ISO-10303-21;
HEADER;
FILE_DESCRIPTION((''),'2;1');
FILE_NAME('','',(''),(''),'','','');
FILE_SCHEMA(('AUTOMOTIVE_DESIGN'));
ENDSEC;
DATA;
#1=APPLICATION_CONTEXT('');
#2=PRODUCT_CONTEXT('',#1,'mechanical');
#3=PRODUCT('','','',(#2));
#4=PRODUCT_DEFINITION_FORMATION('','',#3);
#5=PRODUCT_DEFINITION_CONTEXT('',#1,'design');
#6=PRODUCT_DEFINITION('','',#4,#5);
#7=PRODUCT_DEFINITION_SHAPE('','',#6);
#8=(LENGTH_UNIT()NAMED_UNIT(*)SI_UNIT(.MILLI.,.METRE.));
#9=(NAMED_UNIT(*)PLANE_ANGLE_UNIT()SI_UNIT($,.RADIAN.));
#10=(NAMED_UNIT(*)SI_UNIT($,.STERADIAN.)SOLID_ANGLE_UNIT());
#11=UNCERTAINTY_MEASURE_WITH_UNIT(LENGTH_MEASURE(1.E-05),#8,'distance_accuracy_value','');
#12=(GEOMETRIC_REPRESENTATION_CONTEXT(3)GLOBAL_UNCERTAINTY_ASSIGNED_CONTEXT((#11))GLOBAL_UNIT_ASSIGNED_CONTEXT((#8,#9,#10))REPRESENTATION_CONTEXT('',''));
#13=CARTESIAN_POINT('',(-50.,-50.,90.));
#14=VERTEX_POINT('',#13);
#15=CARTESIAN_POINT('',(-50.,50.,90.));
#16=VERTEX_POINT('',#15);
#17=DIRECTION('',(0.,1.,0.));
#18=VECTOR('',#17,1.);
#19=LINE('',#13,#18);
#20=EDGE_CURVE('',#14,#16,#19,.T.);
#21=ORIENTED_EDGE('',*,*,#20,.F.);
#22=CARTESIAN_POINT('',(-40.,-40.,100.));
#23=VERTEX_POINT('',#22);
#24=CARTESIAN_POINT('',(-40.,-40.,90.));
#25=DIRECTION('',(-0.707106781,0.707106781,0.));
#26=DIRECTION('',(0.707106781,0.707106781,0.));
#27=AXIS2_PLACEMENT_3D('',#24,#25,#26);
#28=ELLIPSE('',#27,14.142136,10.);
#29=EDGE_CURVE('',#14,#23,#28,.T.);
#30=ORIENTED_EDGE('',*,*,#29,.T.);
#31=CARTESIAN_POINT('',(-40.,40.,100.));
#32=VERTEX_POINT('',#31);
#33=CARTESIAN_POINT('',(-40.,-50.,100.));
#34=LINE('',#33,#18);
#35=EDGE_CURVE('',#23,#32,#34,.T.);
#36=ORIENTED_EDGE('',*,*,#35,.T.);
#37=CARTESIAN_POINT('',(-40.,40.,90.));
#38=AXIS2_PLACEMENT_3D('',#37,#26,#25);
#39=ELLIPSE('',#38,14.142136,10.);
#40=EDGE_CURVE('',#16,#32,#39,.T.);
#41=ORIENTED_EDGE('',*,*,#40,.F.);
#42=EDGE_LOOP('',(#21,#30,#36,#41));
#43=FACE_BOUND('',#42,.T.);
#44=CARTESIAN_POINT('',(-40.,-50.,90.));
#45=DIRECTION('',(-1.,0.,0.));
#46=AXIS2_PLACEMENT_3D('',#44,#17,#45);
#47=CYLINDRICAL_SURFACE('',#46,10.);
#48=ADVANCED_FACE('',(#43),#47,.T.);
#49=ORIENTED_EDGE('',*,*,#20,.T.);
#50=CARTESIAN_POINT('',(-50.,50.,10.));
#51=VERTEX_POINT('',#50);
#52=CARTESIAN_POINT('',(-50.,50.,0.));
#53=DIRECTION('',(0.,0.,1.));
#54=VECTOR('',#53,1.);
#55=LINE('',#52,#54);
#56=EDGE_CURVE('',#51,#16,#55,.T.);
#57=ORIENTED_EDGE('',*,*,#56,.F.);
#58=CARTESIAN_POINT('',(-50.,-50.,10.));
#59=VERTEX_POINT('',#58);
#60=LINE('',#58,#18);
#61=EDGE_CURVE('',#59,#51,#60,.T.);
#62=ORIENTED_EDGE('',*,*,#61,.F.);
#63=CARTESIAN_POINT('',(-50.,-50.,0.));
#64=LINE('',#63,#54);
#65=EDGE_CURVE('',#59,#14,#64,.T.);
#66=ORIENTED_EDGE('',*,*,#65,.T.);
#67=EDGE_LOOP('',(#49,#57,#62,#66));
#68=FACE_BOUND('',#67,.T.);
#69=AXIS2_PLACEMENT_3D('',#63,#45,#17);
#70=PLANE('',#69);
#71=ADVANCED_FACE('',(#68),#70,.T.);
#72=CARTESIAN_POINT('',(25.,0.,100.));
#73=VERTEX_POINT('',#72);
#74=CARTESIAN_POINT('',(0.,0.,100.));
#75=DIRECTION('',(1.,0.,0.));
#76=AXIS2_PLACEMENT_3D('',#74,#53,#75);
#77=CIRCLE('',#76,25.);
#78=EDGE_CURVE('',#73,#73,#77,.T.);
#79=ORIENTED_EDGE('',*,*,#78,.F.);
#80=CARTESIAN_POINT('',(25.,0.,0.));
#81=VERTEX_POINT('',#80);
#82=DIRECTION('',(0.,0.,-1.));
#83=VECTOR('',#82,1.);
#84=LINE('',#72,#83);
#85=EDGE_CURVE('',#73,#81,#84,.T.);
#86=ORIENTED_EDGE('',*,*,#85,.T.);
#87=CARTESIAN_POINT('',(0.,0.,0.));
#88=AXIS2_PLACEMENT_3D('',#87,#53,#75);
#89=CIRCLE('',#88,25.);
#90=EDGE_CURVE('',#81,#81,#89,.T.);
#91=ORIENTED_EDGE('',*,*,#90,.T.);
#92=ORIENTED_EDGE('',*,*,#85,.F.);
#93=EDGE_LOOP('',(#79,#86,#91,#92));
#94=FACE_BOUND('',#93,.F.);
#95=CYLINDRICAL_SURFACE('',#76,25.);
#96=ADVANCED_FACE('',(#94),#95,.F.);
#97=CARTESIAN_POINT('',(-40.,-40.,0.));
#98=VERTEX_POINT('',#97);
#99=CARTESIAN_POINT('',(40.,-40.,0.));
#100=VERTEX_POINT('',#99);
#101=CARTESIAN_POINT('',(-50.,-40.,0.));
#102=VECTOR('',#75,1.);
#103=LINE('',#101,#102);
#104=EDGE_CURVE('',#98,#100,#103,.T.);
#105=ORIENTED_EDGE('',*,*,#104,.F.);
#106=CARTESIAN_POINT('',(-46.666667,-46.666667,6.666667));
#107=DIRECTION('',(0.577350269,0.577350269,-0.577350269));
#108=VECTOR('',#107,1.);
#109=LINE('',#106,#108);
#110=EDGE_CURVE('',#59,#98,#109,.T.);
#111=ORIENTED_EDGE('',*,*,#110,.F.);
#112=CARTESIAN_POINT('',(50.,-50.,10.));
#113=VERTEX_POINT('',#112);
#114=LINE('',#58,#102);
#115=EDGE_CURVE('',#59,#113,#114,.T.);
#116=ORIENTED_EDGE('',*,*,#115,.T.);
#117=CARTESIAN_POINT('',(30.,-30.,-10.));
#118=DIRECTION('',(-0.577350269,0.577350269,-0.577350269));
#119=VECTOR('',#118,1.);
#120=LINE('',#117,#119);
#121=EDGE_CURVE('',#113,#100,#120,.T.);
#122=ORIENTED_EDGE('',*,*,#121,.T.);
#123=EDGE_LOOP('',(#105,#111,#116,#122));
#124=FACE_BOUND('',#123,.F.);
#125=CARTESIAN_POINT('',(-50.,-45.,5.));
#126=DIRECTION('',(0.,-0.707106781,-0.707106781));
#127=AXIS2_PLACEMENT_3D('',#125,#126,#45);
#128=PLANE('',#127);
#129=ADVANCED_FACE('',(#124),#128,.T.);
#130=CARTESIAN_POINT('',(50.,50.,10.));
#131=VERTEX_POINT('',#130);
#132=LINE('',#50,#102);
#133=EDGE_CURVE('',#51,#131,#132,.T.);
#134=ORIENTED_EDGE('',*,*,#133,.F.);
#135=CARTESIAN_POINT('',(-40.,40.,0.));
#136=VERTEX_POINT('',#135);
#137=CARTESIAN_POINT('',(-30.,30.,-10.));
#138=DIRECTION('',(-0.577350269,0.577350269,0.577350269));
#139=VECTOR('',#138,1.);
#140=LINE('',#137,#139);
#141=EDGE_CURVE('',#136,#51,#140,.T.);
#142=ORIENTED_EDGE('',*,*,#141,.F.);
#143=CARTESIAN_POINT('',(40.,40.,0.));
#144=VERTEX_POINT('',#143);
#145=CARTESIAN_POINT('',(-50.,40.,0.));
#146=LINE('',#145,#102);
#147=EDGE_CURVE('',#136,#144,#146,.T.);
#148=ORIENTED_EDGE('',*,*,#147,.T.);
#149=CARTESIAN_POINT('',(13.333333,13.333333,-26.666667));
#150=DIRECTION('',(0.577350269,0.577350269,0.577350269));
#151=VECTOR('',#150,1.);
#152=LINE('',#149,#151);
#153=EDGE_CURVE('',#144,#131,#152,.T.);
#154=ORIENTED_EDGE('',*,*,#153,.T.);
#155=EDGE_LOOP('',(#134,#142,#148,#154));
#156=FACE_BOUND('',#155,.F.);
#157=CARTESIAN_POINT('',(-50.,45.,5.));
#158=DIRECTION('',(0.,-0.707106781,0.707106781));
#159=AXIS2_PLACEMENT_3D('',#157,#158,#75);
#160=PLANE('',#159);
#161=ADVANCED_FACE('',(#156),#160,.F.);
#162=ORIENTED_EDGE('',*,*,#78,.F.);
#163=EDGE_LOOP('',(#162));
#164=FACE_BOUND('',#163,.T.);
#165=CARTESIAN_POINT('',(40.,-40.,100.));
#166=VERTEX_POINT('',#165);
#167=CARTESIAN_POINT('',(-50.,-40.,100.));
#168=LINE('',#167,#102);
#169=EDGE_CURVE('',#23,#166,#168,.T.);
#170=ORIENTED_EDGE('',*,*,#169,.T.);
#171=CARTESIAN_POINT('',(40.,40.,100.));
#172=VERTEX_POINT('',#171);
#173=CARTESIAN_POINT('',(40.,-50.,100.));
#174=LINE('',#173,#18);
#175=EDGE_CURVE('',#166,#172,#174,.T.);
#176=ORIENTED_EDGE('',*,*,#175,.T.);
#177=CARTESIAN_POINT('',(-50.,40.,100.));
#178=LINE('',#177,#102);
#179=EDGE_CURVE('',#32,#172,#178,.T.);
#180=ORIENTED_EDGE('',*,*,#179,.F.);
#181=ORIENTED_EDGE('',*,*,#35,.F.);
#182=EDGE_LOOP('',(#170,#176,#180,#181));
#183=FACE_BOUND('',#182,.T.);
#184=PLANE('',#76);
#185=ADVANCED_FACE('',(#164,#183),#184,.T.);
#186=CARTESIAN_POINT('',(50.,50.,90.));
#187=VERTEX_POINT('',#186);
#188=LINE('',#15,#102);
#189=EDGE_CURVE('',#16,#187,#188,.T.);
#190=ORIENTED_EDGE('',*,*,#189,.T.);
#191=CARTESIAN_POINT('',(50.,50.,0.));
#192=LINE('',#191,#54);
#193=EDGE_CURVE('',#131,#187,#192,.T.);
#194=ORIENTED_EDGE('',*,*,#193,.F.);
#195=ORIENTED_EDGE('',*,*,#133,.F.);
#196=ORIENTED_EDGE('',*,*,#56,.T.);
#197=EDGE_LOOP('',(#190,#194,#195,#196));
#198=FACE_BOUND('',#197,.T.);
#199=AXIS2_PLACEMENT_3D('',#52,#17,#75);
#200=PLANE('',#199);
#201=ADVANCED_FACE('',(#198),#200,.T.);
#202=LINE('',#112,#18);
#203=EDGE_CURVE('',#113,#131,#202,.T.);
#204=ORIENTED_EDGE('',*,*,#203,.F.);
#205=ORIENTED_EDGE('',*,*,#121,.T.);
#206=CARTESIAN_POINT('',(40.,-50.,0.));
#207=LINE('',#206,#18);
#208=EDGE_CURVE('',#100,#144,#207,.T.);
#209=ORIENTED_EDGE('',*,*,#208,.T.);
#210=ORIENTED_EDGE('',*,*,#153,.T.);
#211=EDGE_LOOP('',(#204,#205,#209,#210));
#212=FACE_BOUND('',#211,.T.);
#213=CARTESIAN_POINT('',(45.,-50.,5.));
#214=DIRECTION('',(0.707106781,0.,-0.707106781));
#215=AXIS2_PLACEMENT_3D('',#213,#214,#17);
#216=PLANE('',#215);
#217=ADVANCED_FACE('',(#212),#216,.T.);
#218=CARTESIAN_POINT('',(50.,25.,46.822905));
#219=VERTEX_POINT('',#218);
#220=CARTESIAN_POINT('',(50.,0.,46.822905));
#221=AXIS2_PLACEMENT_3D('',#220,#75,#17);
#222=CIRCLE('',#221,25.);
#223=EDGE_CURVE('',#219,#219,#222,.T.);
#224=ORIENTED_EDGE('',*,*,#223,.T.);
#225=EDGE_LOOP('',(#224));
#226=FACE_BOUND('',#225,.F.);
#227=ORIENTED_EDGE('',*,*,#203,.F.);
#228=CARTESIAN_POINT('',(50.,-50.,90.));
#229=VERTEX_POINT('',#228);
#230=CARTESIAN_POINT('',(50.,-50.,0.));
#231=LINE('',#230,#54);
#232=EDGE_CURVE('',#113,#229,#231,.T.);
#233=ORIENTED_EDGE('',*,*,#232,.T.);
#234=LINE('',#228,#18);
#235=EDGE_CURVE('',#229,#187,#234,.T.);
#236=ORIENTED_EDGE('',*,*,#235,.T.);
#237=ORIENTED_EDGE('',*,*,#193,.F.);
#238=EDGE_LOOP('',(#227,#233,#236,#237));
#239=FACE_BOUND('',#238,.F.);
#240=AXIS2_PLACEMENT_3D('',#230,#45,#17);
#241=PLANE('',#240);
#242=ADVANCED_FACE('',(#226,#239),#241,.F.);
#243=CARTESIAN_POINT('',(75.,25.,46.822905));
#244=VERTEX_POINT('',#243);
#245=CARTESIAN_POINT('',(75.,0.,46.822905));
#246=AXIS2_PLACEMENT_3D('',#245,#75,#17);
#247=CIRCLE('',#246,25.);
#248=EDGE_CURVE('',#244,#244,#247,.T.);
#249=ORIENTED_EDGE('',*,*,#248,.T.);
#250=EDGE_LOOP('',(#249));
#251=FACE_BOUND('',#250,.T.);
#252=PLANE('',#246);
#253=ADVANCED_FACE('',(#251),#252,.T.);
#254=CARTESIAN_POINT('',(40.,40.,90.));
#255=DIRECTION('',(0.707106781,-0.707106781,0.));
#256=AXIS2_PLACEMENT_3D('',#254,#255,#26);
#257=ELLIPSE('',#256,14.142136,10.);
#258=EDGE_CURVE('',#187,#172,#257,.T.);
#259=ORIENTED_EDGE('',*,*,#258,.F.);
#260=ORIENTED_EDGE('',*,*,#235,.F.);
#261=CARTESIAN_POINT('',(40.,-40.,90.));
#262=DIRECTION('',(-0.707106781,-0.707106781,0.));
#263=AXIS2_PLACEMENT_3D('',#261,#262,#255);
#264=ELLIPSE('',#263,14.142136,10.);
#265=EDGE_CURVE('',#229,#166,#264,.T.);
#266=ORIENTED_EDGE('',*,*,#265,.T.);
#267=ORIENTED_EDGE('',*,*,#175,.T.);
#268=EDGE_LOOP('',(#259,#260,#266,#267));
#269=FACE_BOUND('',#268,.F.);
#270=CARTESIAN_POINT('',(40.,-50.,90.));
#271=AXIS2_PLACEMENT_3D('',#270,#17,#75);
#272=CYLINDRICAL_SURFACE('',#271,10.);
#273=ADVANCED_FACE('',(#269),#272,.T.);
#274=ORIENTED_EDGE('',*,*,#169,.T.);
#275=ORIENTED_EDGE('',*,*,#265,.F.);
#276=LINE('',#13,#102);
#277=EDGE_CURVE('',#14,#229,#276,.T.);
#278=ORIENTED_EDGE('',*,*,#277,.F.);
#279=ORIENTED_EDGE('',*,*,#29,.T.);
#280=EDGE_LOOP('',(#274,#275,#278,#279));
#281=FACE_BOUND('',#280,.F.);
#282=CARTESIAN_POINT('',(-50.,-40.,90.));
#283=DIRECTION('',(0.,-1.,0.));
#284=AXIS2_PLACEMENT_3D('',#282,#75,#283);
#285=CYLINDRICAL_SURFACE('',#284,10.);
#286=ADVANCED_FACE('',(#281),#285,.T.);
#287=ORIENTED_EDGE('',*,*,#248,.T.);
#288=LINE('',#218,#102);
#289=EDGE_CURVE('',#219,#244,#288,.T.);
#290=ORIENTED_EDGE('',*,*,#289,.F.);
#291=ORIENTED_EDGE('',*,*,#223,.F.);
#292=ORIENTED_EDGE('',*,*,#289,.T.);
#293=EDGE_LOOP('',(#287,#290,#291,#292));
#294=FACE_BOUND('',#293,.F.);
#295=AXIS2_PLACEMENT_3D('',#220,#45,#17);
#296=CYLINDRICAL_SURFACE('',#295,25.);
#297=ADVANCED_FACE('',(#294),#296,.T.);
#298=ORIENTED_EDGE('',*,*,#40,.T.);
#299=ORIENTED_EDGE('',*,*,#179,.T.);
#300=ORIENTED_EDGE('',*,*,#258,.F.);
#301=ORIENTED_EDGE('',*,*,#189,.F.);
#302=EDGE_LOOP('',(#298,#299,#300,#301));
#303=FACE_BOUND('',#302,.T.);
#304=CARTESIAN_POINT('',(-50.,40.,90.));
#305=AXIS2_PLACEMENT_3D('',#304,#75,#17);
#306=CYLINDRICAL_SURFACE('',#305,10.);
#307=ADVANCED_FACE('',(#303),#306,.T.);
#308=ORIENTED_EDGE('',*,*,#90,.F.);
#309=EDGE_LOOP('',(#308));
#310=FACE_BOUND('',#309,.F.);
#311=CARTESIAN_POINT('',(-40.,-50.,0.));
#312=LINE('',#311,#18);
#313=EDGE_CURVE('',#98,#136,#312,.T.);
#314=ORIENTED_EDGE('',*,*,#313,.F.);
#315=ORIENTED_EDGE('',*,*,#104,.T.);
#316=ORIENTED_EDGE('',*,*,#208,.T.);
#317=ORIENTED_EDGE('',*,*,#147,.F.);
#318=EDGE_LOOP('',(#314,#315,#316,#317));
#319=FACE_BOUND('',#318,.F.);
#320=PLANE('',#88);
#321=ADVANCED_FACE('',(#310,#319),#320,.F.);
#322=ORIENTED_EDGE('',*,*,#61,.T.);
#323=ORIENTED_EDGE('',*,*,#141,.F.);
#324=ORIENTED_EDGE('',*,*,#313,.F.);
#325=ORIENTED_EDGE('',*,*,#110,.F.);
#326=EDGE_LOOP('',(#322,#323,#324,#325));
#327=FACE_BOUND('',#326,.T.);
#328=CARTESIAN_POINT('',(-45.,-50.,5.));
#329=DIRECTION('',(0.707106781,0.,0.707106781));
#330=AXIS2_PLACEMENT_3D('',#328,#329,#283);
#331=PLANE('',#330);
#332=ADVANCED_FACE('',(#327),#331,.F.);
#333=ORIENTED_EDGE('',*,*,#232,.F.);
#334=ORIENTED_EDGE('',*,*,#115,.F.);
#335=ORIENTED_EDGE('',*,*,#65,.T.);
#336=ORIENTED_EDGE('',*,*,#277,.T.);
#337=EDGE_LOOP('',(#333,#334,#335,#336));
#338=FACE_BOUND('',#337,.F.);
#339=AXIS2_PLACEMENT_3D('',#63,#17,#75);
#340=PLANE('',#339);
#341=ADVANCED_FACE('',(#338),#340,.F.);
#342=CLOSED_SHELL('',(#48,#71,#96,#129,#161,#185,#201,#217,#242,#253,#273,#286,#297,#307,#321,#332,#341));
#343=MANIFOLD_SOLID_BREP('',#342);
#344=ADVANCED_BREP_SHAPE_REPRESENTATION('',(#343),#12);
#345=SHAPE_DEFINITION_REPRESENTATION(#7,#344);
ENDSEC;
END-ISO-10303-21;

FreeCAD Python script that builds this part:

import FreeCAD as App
import Part
import Sketcher
from FreeCAD import Vector
Q = App.Units.Quantity


def edges_at(feature, points):
    """Names of the edges that pass closest to the given points."""
    edges = feature.Shape.Edges
    near = lambda p: min(range(len(edges)), key=lambda i: edges[i].distToShape(Part.Vertex(*p))[0])
    return sorted({f"Edge{near(p) + 1}" for p in points})


def add_polygon(sketch, points):
    """Adds a closed chain of lines whose ends are joined by coincident constraints."""
    first, n = sketch.GeometryCount, len(points)
    for a, b in zip(points, points[1:] + points[:1]):
        sketch.addGeometry(Part.LineSegment(App.Vector(*a, 0), App.Vector(*b, 0)), False)
    for i in range(n):
        sketch.addConstraint(Sketcher.Constraint("Coincident", first + i, 2, first + (i + 1) % n, 1))

doc = App.newDocument("Part")
params = doc.addObject("Spreadsheet::Sheet", "Params")
for row, (alias, value) in enumerate([
    ("sketch1_width", "100 mm"),
    ("pad1_length", "100 mm"),
    ("fillet_radius", "10 mm"),
    ("chamfer_size", "10 mm"),
    ("sketch2_diameter", "50 mm"),
    ("pocket1_length", "100 mm"),
    ("sketch3_diameter", "50 mm"),
    ("pad2_length", "25 mm"),
], start=1):
    params.set(f"A{row}", alias)
    params.set(f"B{row}", "=" + value)
    params.setAlias(f"B{row}", alias)

body = doc.addObject("PartDesign::Body", "Body")

sketch1 = body.newObject("Sketcher::SketchObject", "Sketch")
sketch1.AttachmentSupport = (doc.getObject("XY_Plane"), [""])
sketch1.MapMode = "FlatFace"
add_polygon(sketch1, [(-50, 50), (-50, -50), (50, -50), (50, 50)])
sketch1.addConstraint([
    Sketcher.Constraint("Vertical", 0),
    Sketcher.Constraint("Horizontal", 1),
    Sketcher.Constraint("Vertical", 2),
    Sketcher.Constraint("Horizontal", 3),
    Sketcher.Constraint("Symmetric", 0, 2, 2, 2, -1, 1),
    Sketcher.Constraint("Equal", 3, 0),
    Sketcher.Constraint("DistanceX", 1, 1, 1, 2, Q("100 mm")),
])
sketch1.setExpression("Constraints[10]", "Params.sketch1_width")
pad1 = body.newObject("PartDesign::Pad", "Pad")
pad1.Profile = sketch1
pad1.setExpression("Length", "Params.pad1_length")
doc.recompute()

fillet = body.newObject("PartDesign::Fillet", "Fillet")
fillet.Base = (pad1, edges_at(pad1, [
    (-50, 0, 100),
    (0, -50, 100),
    (50, 0, 100),
    (0, 50, 100),
]))
fillet.setExpression("Radius", "Params.fillet_radius")
doc.recompute()

chamfer = body.newObject("PartDesign::Chamfer", "Chamfer")
chamfer.Base = (fillet, edges_at(fillet, [
    (0, -50, 0),
    (50, 0, 0),
    (0, 50, 0),
    (-50, 0, 0),
]))
chamfer.setExpression("Size", "Params.chamfer_size")

sketch2 = body.newObject("Sketcher::SketchObject", "Sketch001")
sketch2.AttachmentSupport = (doc.getObject("XY_Plane"), [""])
sketch2.MapMode = "FlatFace"
sketch2.AttachmentOffset = App.Placement(Vector(0, 0, 100), App.Rotation())
sketch2.addGeometry(Part.Circle(Vector(0, 0, 0), Vector(0, 0, 1), 25), False)
sketch2.addConstraint([
    Sketcher.Constraint("Coincident", 0, 3, -1, 1),
    Sketcher.Constraint("Diameter", 0, Q("50 mm")),
])
sketch2.setExpression("Constraints[1]", "Params.sketch2_diameter")
pocket1 = body.newObject("PartDesign::Pocket", "Pocket")
pocket1.Profile = sketch2
pocket1.setExpression("Length", "Params.pocket1_length")

sketch3 = body.newObject("Sketcher::SketchObject", "Sketch002")
sketch3.AttachmentSupport = (doc.getObject("YZ_Plane"), [""])
sketch3.MapMode = "FlatFace"
sketch3.AttachmentOffset = App.Placement(Vector(0, 0, 50), App.Rotation())
sketch3.addGeometry(Part.Circle(Vector(0, 47, 0), Vector(0, 0, 1), 25), False)
sketch3.addConstraint([
    Sketcher.Constraint("PointOnObject", 0, 3, -2),
    Sketcher.Constraint("Diameter", 0, Q("50 mm")),
    Sketcher.Constraint("DistanceY", -1, 1, 0, 3, Q("46.822905 mm")),
])
sketch3.setExpression("Constraints[1]", "Params.sketch3_diameter")
pad2 = body.newObject("PartDesign::Pad", "Pad001")
pad2.Profile = sketch3
pad2.setExpression("Length", "Params.pad2_length")

doc.recompute()
